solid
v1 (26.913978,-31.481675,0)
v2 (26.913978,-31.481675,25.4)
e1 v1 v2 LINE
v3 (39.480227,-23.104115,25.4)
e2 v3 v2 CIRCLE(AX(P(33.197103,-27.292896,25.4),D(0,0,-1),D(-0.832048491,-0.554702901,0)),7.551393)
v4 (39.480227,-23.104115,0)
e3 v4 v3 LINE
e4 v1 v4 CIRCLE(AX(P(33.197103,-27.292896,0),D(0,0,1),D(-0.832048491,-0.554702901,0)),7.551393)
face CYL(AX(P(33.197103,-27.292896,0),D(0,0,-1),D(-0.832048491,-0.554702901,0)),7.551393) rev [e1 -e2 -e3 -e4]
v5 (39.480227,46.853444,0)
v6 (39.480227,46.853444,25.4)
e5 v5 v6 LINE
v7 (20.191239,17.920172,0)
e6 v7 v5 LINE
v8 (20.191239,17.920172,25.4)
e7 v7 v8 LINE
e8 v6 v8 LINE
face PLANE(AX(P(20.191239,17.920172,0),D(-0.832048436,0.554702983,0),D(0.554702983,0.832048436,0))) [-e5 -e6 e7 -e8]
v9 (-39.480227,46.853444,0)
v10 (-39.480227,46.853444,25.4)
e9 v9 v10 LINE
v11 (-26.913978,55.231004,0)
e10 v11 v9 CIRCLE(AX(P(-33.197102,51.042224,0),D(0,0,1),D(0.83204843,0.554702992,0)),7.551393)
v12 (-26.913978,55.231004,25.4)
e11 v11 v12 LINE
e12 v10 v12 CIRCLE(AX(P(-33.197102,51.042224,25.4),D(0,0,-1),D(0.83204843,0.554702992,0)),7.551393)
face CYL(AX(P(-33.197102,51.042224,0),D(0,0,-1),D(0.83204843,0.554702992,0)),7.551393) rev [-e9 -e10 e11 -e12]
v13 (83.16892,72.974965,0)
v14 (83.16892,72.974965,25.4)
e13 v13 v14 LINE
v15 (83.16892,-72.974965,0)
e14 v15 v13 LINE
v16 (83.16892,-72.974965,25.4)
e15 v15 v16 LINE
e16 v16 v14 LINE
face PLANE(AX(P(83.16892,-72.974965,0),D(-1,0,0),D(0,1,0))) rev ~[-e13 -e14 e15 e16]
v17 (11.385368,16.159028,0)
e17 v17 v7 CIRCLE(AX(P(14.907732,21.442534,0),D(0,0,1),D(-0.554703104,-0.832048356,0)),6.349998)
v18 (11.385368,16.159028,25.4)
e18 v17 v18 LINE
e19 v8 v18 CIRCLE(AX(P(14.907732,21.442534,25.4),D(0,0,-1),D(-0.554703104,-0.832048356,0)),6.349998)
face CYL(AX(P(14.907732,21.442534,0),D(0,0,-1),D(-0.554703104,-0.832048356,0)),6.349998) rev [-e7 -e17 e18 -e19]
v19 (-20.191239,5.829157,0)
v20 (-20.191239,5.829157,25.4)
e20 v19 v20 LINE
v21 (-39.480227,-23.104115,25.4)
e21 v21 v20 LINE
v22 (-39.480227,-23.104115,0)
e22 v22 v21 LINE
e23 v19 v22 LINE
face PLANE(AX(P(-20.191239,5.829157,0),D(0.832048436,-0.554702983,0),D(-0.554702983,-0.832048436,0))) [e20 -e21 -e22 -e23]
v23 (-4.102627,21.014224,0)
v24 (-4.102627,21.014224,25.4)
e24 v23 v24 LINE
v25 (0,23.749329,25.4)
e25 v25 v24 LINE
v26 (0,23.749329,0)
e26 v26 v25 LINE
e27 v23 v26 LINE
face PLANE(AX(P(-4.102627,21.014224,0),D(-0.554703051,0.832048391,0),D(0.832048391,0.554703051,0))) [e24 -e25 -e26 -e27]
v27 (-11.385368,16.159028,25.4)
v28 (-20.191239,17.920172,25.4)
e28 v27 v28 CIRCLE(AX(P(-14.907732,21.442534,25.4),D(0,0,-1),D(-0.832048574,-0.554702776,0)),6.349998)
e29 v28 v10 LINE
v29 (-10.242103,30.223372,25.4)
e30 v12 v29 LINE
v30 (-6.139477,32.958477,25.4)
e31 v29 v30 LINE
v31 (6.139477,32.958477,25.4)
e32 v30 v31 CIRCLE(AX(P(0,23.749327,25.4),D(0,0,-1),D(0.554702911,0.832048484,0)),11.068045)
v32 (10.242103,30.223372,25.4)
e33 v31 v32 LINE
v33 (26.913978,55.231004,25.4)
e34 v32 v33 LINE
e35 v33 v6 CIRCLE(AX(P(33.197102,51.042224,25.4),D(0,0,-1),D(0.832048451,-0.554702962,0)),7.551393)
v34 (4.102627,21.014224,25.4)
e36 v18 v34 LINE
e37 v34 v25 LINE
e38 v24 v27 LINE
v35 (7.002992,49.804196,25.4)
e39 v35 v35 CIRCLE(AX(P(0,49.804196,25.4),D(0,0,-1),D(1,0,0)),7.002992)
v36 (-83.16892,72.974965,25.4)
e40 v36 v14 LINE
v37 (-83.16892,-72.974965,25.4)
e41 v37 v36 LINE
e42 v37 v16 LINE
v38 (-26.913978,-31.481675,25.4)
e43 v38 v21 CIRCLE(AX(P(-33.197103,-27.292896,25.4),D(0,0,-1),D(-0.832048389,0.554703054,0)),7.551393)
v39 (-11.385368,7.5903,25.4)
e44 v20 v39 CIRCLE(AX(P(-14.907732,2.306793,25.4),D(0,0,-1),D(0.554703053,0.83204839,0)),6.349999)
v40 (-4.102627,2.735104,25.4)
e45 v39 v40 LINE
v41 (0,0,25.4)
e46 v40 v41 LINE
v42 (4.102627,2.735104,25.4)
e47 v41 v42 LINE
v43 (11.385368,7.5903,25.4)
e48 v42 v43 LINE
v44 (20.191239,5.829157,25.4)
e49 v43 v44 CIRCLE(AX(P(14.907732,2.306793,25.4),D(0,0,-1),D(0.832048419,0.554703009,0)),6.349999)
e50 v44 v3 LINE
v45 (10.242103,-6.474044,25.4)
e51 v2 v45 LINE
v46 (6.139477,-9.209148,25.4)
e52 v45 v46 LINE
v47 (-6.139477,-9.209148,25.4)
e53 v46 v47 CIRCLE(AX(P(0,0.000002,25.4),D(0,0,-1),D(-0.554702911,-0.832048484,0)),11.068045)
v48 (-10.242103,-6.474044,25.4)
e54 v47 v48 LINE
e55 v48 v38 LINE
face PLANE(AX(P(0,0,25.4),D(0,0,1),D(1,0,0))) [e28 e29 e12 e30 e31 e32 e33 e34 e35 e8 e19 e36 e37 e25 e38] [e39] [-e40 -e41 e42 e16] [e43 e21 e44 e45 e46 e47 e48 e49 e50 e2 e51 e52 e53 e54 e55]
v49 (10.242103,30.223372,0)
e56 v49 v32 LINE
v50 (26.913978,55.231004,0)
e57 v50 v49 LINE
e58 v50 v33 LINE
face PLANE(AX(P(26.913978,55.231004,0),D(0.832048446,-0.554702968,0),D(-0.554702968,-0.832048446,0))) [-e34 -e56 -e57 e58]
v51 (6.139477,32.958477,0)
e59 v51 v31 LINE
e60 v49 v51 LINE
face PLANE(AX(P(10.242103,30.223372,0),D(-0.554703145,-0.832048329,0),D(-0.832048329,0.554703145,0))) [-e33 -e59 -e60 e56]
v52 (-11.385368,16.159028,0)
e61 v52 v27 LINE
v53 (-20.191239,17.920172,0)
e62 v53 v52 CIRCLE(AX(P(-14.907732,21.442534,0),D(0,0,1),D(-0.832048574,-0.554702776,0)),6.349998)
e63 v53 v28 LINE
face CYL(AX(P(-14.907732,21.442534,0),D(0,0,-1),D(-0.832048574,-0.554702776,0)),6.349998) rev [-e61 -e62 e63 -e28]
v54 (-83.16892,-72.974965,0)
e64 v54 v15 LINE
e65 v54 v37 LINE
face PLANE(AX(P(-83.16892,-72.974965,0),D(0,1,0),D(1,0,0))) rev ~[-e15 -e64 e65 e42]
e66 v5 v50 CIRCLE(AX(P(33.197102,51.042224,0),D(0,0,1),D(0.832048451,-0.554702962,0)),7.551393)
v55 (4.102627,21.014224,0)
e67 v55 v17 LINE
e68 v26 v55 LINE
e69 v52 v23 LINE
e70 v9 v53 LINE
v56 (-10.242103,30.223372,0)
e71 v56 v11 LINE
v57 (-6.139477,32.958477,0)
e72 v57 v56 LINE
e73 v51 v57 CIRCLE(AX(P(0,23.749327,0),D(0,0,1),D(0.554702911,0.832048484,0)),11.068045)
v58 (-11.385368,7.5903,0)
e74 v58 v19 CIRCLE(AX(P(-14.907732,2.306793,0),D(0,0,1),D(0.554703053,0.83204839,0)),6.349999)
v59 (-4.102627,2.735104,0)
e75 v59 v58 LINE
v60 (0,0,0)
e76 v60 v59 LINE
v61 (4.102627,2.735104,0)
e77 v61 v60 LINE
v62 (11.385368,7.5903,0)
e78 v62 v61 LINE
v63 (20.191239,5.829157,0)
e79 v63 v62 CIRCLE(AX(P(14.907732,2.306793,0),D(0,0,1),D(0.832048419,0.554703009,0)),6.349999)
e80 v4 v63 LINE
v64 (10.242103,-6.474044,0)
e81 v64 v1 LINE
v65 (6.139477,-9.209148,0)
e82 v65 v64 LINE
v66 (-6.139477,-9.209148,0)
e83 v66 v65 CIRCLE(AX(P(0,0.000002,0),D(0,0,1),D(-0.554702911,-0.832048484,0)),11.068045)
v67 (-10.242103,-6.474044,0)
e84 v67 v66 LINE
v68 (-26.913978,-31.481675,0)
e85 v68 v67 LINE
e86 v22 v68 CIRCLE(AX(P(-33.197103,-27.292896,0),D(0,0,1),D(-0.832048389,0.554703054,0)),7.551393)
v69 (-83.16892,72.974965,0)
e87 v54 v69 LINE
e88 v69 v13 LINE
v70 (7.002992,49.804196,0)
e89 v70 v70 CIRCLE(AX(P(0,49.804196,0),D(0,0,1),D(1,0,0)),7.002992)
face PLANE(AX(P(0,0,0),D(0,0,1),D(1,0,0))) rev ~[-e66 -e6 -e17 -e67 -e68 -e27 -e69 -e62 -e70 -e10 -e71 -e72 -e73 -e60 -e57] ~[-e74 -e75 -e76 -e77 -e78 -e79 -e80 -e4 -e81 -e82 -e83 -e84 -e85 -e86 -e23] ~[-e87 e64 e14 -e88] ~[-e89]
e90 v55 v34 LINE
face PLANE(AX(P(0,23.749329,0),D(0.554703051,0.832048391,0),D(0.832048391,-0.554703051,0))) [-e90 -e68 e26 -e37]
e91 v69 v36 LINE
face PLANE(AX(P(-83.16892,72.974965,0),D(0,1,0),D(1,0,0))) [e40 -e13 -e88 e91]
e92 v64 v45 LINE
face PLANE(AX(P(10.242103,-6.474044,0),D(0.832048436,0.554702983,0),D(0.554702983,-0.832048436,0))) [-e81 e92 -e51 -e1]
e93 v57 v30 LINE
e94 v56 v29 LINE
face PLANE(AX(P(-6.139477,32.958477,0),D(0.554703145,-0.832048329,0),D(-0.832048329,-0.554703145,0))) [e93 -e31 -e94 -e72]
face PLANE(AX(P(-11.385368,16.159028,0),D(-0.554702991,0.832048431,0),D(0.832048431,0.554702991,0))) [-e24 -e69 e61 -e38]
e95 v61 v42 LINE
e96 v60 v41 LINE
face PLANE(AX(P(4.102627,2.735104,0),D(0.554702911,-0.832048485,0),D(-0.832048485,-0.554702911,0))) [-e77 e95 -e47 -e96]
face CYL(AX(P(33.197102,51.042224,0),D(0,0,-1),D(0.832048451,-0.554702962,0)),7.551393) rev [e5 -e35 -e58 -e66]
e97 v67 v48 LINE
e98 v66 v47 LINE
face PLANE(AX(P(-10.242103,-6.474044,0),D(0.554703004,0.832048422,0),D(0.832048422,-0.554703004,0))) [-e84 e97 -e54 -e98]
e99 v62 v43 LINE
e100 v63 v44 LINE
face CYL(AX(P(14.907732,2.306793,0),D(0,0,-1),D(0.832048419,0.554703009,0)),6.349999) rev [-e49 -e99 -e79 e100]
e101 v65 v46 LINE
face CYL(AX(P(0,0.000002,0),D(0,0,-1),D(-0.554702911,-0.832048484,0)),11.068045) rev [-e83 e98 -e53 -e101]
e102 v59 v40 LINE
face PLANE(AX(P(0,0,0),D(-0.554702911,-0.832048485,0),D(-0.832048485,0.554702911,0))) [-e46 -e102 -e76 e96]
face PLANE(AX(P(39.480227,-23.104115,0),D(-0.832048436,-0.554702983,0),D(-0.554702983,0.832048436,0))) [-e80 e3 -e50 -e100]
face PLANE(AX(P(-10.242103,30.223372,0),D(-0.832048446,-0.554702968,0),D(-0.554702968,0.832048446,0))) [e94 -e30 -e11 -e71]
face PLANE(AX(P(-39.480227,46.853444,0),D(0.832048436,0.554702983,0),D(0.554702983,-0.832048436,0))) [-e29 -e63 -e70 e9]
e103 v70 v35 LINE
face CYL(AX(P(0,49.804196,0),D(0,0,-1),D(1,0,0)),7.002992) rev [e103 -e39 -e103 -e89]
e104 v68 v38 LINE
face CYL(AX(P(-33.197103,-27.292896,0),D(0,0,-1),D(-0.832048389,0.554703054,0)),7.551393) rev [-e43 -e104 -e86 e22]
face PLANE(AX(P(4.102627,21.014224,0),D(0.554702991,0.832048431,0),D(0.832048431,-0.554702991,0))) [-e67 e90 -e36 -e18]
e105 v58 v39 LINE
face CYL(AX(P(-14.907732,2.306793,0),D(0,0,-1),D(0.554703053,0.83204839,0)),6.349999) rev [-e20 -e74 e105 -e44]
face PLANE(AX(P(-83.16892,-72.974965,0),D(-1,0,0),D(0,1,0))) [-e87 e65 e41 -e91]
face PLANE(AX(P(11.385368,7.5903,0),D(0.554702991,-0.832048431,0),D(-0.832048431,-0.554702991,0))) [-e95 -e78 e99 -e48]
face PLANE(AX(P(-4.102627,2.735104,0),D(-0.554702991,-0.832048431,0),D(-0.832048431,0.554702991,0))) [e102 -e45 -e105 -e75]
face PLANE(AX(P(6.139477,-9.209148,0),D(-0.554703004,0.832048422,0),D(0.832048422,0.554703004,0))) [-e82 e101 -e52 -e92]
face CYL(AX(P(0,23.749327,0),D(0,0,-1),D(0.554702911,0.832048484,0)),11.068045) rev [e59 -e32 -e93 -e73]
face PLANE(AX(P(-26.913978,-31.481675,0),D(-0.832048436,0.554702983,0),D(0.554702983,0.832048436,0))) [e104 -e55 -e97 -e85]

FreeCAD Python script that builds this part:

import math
import FreeCAD as App
import Part
import Sketcher

V = App.Vector
Q = App.Units.Quantity


def add_polygon(sketch, points):
    """Adds a closed chain of lines whose ends are joined by coincident constraints."""
    first, n = sketch.GeometryCount, len(points)
    for a, b in zip(points, points[1:] + points[:1]):
        sketch.addGeometry(Part.LineSegment(App.Vector(*a, 0), App.Vector(*b, 0)), False)
    for i in range(n):
        sketch.addConstraint(Sketcher.Constraint("Coincident", first + i, 2, first + (i + 1) % n, 1))

doc = App.newDocument("Part")
body = doc.addObject("PartDesign::Body", "Body")

# Sketch on XY plane
sketch1 = body.newObject("Sketcher::SketchObject", "Sketch")
sketch1.AttachmentSupport = (doc.getObject("XY_Plane"), [""])
sketch1.MapMode = "FlatFace"
add_polygon(sketch1, [(-83.16892, 72.974965), (-83.16892, -72.974965), (83.16892, -72.974965), (83.16892, 72.974965)])  # lines 0-3
sketch1.addConstraint([
    Sketcher.Constraint("Vertical", 0),
    Sketcher.Constraint("Horizontal", 1),
    Sketcher.Constraint("Vertical", 2),
    Sketcher.Constraint("Horizontal", 3),
    Sketcher.Constraint("Symmetric", 0, 2, 2, 2, -1, 1),
    Sketcher.Constraint("DistanceX", 1, 1, 1, 2, Q("166.33784 mm")),
    Sketcher.Constraint("DistanceY", 0, 2, 0, 1, Q("145.94993 mm")),
])
pad1 = body.newObject("PartDesign::Pad", "Pad")
pad1.Profile = sketch1
pad1.Length = Q("1 in")

# Sketch on XY plane
sketch2 = body.newObject("Sketcher::SketchObject", "Sketch001")
sketch2.AttachmentSupport = (doc.getObject("XY_Plane"), [""])
sketch2.MapMode = "FlatFace"
sketch2.addGeometry([
    Part.LineSegment(V(-4.102627, 2.735104, 0), V(-11.385368, 7.5903, 0)),  # 0
    Part.ArcOfCircle(Part.Circle(V(-14.907732, 2.306793, 0), V(0, 0, 1), 6.349999), math.radians(56.309736), math.radians(146.309739)),  # 1
    Part.LineSegment(V(-20.191239, 5.829157, 0), V(-39.480227, -23.104115, 0)),  # 2
    Part.ArcOfCircle(Part.Circle(V(-33.197103, -27.292896, 0), V(0, 0, 1), 7.551393), math.radians(146.309736), math.radians(326.309746)),  # 3
    Part.LineSegment(V(-26.913978, -31.481675, 0), V(-10.242103, -6.474044, 0)),  # 4
    Part.LineSegment(V(-10.242103, -6.474044, 0), V(-6.139477, -9.209148, 0)),  # 5
    Part.ArcOfCircle(Part.Circle(V(0, 0.000002, 0), V(0, 0, 1), 11.068045), math.radians(-123.690255), math.radians(-56.309745)),  # 6
    Part.LineSegment(V(6.139477, -9.209148, 0), V(10.242103, -6.474044, 0)),  # 7
    Part.LineSegment(V(10.242103, -6.474044, 0), V(26.913978, -31.481675, 0)),  # 8
    Part.ArcOfCircle(Part.Circle(V(33.197103, -27.292896, 0), V(0, 0, 1), 7.551393), math.radians(-146.309746), math.radians(33.690264)),  # 9
    Part.LineSegment(V(39.480227, -23.104115, 0), V(20.191239, 5.829157, 0)),  # 10
    Part.ArcOfCircle(Part.Circle(V(14.907732, 2.306793, 0), V(0, 0, 1), 6.349999), math.radians(33.690261), math.radians(123.690264)),  # 11
    Part.LineSegment(V(11.385368, 7.5903, 0), V(4.102627, 2.735104, 0)),  # 12
    Part.LineSegment(V(4.102627, 2.735104, 0), V(0, 0, 0)),  # 13
    Part.LineSegment(V(0, 0, 0), V(-4.102627, 2.735104, 0)),  # 14
    Part.Circle(V(0, 49.804196, 0), V(0, 0, 1), 7.002992),  # 15
    Part.ArcOfCircle(Part.Circle(V(0, 23.749327, 0), V(0, 0, 1), 11.068045), math.radians(56.309745), math.radians(123.690255)),  # 16
    Part.LineSegment(V(-6.139477, 32.958477, 0), V(-10.242103, 30.223372, 0)),  # 17
    Part.LineSegment(V(-10.242103, 30.223372, 0), V(-26.913978, 55.231004, 0)),  # 18
    Part.ArcOfCircle(Part.Circle(V(-33.197102, 51.042224, 0), V(0, 0, 1), 7.551393), math.radians(33.69026), math.radians(213.690258)),  # 19
    Part.LineSegment(V(-39.480227, 46.853444, 0), V(-20.191239, 17.920172, 0)),  # 20
    Part.ArcOfCircle(Part.Circle(V(-14.907732, 21.442534, 0), V(0, 0, 1), 6.349998), math.radians(-146.309755), math.radians(-56.309732)),  # 21
    Part.LineSegment(V(-11.385368, 16.159028, 0), V(-4.102627, 21.014224, 0)),  # 22
    Part.LineSegment(V(-4.102627, 21.014224, 0), V(0, 23.749329, 0)),  # 23
    Part.LineSegment(V(0, 23.749329, 0), V(4.102627, 21.014224, 0)),  # 24
    Part.LineSegment(V(4.102627, 21.014224, 0), V(11.385368, 16.159028, 0)),  # 25
    Part.ArcOfCircle(Part.Circle(V(14.907732, 21.442534, 0), V(0, 0, 1), 6.349998), math.radians(-123.690268), math.radians(-33.690245)),  # 26
    Part.LineSegment(V(20.191239, 17.920172, 0), V(39.480227, 46.853444, 0)),  # 27
    Part.ArcOfCircle(Part.Circle(V(33.197102, 51.042224, 0), V(0, 0, 1), 7.551393), math.radians(-33.690258), math.radians(146.30974)),  # 28
    Part.LineSegment(V(26.913978, 55.231004, 0), V(10.242103, 30.223372, 0)),  # 29
    Part.LineSegment(V(10.242103, 30.223372, 0), V(6.139477, 32.958477, 0)),  # 30
], False)
sketch2.addConstraint([
    Sketcher.Constraint("Tangent", 0, 2, 1, 1),
    Sketcher.Constraint("Tangent", 1, 2, 2, 1),
    Sketcher.Constraint("Tangent", 2, 2, 3, 1),
    Sketcher.Constraint("Tangent", 3, 2, 4, 1),
    Sketcher.Constraint("Coincident", 4, 2, 5, 1),
    Sketcher.Constraint("Tangent", 5, 2, 6, 1),
    Sketcher.Constraint("Tangent", 6, 2, 7, 1),
    Sketcher.Constraint("Coincident", 7, 2, 8, 1),
    Sketcher.Constraint("Tangent", 8, 2, 9, 1),
    Sketcher.Constraint("Tangent", 9, 2, 10, 1),
    Sketcher.Constraint("Tangent", 10, 2, 11, 1),
    Sketcher.Constraint("Tangent", 11, 2, 12, 1),
    Sketcher.Constraint("Coincident", 12, 2, 13, 1),
    Sketcher.Constraint("Coincident", 13, 2, 14, 1),
    Sketcher.Constraint("Coincident", 14, 2, 0, 1),
    Sketcher.Constraint("Tangent", 16, 2, 17, 1),
    Sketcher.Constraint("Coincident", 17, 2, 18, 1),
    Sketcher.Constraint("Tangent", 18, 2, 19, 1),
    Sketcher.Constraint("Tangent", 19, 2, 20, 1),
    Sketcher.Constraint("Tangent", 20, 2, 21, 1),
    Sketcher.Constraint("Tangent", 21, 2, 22, 1),
    Sketcher.Constraint("Coincident", 22, 2, 23, 1),
    Sketcher.Constraint("Coincident", 23, 2, 24, 1),
    Sketcher.Constraint("Coincident", 24, 2, 25, 1),
    Sketcher.Constraint("Tangent", 25, 2, 26, 1),
    Sketcher.Constraint("Tangent", 26, 2, 27, 1),
    Sketcher.Constraint("Tangent", 27, 2, 28, 1),
    Sketcher.Constraint("Tangent", 28, 2, 29, 1),
    Sketcher.Constraint("Coincident", 29, 2, 30, 1),
    Sketcher.Constraint("Tangent", 30, 2, 16, 1),
    Sketcher.Constraint("Coincident", 6, 3, -1, 1),
    Sketcher.Constraint("Coincident", 13, 2, -1, 1),
    Sketcher.Constraint("Coincident", 23, 2, 16, 3),
    Sketcher.Constraint("Equal", 3, 9),
    Sketcher.Constraint("Equal", 1, 11),
    Sketcher.Constraint("Equal", 6, 16),
    Sketcher.Constraint("Equal", 9, 19),
    Sketcher.Constraint("Equal", 11, 21),
    Sketcher.Constraint("Equal", 21, 26),
    Sketcher.Constraint("Equal", 19, 28),
    Sketcher.Constraint("Symmetric", 3, 3, 9, 3, -2),
    Sketcher.Constraint("Symmetric", 1, 3, 11, 3, -2),
    Sketcher.Constraint("Symmetric", 21, 3, 26, 3, -2),
    Sketcher.Constraint("Symmetric", 19, 3, 28, 3, -2),
    Sketcher.Constraint("Symmetric", 4, 2, 7, 2, -2),
    Sketcher.Constraint("Symmetric", 12, 2, 14, 2, -2),
    Sketcher.Constraint("Symmetric", 22, 2, 24, 2, -2),
    Sketcher.Constraint("Symmetric", 17, 2, 29, 2, -2),
    Sketcher.Constraint("PointOnObject", 15, 3, -2),
    Sketcher.Constraint("PointOnObject", 16, 3, -2),
    Sketcher.Constraint("Perpendicular", 0, 2),
    Sketcher.Constraint("Parallel", 2, 4),
    Sketcher.Constraint("Perpendicular", 4, 5),
    Sketcher.Constraint("Parallel", 12, 13),
    Sketcher.Constraint("Parallel", 13, 17),
    Sketcher.Constraint("Perpendicular", 17, 18),
    Sketcher.Constraint("Parallel", 18, 20),
    Sketcher.Constraint("Perpendicular", 20, 22),
    Sketcher.Constraint("Parallel", 22, 23),
    Sketcher.Constraint("Vertical", 3, 3, 19, 3),
    Sketcher.Constraint("Vertical", 1, 3, 21, 3),
    Sketcher.Constraint("Vertical", 14, 2, 22, 2),
    Sketcher.Constraint("Equal", 7, 13),
    Sketcher.Constraint("Radius", 1, Q("0.25 in")),
    Sketcher.Constraint("Diameter", 15, Q("14.005984 mm")),
    Sketcher.Constraint("Radius", 3, Q("7.551393 mm")),
    Sketcher.Constraint("Radius", 6, Q("11.068045 mm")),
    Sketcher.Constraint("DistanceY", 1, 2, 21, 3, Q("0.6146999 in")),
    Sketcher.Constraint("Distance", 4, Q("30.055499 mm")),
    Sketcher.Constraint("DistanceY", -1, 1, 0, 2, Q("7.5903 mm")),
    Sketcher.Constraint("DistanceX", 0, 2, 11, 3, Q("26.2931 mm")),
    Sketcher.Constraint("DistanceY", 3, 3, 15, 3, Q("77.097092 mm")),
])
pocket1 = body.newObject("PartDesign::Pocket", "Pocket")
pocket1.Profile = sketch2
pocket1.Length = Q("3.46 in")
pocket1.Reversed = True

doc.recompute()
